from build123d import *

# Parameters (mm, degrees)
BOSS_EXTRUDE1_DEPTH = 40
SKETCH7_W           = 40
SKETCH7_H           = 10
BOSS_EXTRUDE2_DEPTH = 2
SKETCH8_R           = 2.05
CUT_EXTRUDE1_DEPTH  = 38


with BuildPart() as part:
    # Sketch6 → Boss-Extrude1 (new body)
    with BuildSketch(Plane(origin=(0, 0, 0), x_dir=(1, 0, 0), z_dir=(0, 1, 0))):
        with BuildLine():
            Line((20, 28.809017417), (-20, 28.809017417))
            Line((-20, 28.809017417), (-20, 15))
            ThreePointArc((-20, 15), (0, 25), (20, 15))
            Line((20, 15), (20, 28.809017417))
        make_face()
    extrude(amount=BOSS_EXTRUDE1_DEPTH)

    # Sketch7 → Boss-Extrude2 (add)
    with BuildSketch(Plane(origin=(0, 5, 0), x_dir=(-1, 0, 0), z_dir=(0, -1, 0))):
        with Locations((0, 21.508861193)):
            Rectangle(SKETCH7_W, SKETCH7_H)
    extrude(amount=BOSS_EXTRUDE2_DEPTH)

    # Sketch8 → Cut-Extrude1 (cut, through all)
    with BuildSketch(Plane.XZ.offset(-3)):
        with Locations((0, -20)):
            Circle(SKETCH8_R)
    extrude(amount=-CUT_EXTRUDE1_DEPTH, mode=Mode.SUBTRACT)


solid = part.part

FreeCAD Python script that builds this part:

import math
import FreeCAD as App
import Part
import Sketcher


def add_polygon(sketch, points):
    """Adds a closed chain of lines whose ends are joined by coincident constraints."""
    first, n = sketch.GeometryCount, len(points)
    for a, b in zip(points, points[1:] + points[:1]):
        sketch.addGeometry(Part.LineSegment(App.Vector(*a, 0), App.Vector(*b, 0)), False)
    for i in range(n):
        sketch.addConstraint(Sketcher.Constraint("Coincident", first + i, 2, first + (i + 1) % n, 1))

doc = App.newDocument("Part")
body = doc.addObject("PartDesign::Body", "Body")

# Sketch on XZ plane
sketch1 = body.newObject("Sketcher::SketchObject", "Sketch")
sketch1.AttachmentSupport = (doc.getObject("XZ_Plane"), [""])
sketch1.MapMode = "FlatFace"
sketch1.addGeometry(Part.LineSegment(App.Vector(20, -28.809017, 0), App.Vector(-20, -28.809017, 0)), False)
sketch1.addGeometry(Part.LineSegment(App.Vector(-20, -28.809017, 0), App.Vector(-20, -15, 0)), False)
sketch1.addGeometry(Part.ArcOfCircle(Part.Circle(App.Vector(0, 0, 0), App.Vector(0, 0, 1), 25), math.radians(-143.130102), math.radians(-36.869898)), False)
sketch1.addGeometry(Part.LineSegment(App.Vector(20, -15, 0), App.Vector(20, -28.809017, 0)), False)
sketch1.addConstraint(Sketcher.Constraint("Coincident", 0, 2, 1, 1))
sketch1.addConstraint(Sketcher.Constraint("Coincident", 1, 2, 2, 1))
sketch1.addConstraint(Sketcher.Constraint("Coincident", 2, 2, 3, 1))
sketch1.addConstraint(Sketcher.Constraint("Coincident", 3, 2, 0, 1))
sketch1.addConstraint(Sketcher.Constraint("Horizontal", 0))
sketch1.addConstraint(Sketcher.Constraint("Vertical", 1))
sketch1.addConstraint(Sketcher.Constraint("Vertical", 3))
sketch1.addConstraint(Sketcher.Constraint("Coincident", 2, 3, -1, 1))
sketch1.addConstraint(Sketcher.Constraint("Horizontal", 1, 2, 2, 2))
sketch1.addConstraint(Sketcher.Constraint("Radius", 2, 25.0))
sketch1.addConstraint(Sketcher.Constraint("DistanceX", 0, 2, 0, 1, 40.0))
sketch1.addConstraint(Sketcher.Constraint("DistanceY", 1, 1, 1, 2, 13.809017))
pad1 = body.newObject("PartDesign::Pad", "Pad")
pad1.Profile = sketch1
pad1.Length = 40
pad1.Reversed = True

# Sketch on XZ plane
sketch2 = body.newObject("Sketcher::SketchObject", "Sketch001")
sketch2.AttachmentSupport = (doc.getObject("XZ_Plane"), [""])
sketch2.MapMode = "FlatFace"
sketch2.AttachmentOffset = App.Placement(App.Vector(0, 0, -5), App.Rotation())
add_polygon(sketch2, [(20, -26.508861), (20, -16.508861), (-20, -16.508861), (-20, -26.508861)])  # lines 0-3
sketch2.addConstraint(Sketcher.Constraint("Vertical", 0))
sketch2.addConstraint(Sketcher.Constraint("Horizontal", 1))
sketch2.addConstraint(Sketcher.Constraint("Vertical", 2))
sketch2.addConstraint(Sketcher.Constraint("Horizontal", 3))
sketch2.addConstraint(Sketcher.Constraint("DistanceX", 1, 2, 1, 1, 40.0))
sketch2.addConstraint(Sketcher.Constraint("DistanceY", 0, 1, 0, 2, 10.0))
sketch2.addConstraint(Sketcher.Constraint("DistanceX", -1, 1, 0, 2, 20.0))
sketch2.addConstraint(Sketcher.Constraint("DistanceY", 0, 2, -1, 1, 16.508861))
pad2 = body.newObject("PartDesign::Pad", "Pad001")
pad2.Profile = sketch2
pad2.Length = 2

# Sketch on XZ plane
sketch3 = body.newObject("Sketcher::SketchObject", "Sketch002")
sketch3.AttachmentSupport = (doc.getObject("XZ_Plane"), [""])
sketch3.MapMode = "FlatFace"
sketch3.AttachmentOffset = App.Placement(App.Vector(0, 0, -3), App.Rotation())
sketch3.addGeometry(Part.Circle(App.Vector(0, -20, 0), App.Vector(0, 0, 1), 2.05), False)
sketch3.addConstraint(Sketcher.Constraint("PointOnObject", 0, 3, -2))
sketch3.addConstraint(Sketcher.Constraint("Diameter", 0, 4.1))
sketch3.addConstraint(Sketcher.Constraint("DistanceY", 0, 3, -1, 1, 20.0))
pocket1 = body.newObject("PartDesign::Pocket", "Pocket")
pocket1.Profile = sketch3
pocket1.Type = "ThroughAll"

doc.recompute()
